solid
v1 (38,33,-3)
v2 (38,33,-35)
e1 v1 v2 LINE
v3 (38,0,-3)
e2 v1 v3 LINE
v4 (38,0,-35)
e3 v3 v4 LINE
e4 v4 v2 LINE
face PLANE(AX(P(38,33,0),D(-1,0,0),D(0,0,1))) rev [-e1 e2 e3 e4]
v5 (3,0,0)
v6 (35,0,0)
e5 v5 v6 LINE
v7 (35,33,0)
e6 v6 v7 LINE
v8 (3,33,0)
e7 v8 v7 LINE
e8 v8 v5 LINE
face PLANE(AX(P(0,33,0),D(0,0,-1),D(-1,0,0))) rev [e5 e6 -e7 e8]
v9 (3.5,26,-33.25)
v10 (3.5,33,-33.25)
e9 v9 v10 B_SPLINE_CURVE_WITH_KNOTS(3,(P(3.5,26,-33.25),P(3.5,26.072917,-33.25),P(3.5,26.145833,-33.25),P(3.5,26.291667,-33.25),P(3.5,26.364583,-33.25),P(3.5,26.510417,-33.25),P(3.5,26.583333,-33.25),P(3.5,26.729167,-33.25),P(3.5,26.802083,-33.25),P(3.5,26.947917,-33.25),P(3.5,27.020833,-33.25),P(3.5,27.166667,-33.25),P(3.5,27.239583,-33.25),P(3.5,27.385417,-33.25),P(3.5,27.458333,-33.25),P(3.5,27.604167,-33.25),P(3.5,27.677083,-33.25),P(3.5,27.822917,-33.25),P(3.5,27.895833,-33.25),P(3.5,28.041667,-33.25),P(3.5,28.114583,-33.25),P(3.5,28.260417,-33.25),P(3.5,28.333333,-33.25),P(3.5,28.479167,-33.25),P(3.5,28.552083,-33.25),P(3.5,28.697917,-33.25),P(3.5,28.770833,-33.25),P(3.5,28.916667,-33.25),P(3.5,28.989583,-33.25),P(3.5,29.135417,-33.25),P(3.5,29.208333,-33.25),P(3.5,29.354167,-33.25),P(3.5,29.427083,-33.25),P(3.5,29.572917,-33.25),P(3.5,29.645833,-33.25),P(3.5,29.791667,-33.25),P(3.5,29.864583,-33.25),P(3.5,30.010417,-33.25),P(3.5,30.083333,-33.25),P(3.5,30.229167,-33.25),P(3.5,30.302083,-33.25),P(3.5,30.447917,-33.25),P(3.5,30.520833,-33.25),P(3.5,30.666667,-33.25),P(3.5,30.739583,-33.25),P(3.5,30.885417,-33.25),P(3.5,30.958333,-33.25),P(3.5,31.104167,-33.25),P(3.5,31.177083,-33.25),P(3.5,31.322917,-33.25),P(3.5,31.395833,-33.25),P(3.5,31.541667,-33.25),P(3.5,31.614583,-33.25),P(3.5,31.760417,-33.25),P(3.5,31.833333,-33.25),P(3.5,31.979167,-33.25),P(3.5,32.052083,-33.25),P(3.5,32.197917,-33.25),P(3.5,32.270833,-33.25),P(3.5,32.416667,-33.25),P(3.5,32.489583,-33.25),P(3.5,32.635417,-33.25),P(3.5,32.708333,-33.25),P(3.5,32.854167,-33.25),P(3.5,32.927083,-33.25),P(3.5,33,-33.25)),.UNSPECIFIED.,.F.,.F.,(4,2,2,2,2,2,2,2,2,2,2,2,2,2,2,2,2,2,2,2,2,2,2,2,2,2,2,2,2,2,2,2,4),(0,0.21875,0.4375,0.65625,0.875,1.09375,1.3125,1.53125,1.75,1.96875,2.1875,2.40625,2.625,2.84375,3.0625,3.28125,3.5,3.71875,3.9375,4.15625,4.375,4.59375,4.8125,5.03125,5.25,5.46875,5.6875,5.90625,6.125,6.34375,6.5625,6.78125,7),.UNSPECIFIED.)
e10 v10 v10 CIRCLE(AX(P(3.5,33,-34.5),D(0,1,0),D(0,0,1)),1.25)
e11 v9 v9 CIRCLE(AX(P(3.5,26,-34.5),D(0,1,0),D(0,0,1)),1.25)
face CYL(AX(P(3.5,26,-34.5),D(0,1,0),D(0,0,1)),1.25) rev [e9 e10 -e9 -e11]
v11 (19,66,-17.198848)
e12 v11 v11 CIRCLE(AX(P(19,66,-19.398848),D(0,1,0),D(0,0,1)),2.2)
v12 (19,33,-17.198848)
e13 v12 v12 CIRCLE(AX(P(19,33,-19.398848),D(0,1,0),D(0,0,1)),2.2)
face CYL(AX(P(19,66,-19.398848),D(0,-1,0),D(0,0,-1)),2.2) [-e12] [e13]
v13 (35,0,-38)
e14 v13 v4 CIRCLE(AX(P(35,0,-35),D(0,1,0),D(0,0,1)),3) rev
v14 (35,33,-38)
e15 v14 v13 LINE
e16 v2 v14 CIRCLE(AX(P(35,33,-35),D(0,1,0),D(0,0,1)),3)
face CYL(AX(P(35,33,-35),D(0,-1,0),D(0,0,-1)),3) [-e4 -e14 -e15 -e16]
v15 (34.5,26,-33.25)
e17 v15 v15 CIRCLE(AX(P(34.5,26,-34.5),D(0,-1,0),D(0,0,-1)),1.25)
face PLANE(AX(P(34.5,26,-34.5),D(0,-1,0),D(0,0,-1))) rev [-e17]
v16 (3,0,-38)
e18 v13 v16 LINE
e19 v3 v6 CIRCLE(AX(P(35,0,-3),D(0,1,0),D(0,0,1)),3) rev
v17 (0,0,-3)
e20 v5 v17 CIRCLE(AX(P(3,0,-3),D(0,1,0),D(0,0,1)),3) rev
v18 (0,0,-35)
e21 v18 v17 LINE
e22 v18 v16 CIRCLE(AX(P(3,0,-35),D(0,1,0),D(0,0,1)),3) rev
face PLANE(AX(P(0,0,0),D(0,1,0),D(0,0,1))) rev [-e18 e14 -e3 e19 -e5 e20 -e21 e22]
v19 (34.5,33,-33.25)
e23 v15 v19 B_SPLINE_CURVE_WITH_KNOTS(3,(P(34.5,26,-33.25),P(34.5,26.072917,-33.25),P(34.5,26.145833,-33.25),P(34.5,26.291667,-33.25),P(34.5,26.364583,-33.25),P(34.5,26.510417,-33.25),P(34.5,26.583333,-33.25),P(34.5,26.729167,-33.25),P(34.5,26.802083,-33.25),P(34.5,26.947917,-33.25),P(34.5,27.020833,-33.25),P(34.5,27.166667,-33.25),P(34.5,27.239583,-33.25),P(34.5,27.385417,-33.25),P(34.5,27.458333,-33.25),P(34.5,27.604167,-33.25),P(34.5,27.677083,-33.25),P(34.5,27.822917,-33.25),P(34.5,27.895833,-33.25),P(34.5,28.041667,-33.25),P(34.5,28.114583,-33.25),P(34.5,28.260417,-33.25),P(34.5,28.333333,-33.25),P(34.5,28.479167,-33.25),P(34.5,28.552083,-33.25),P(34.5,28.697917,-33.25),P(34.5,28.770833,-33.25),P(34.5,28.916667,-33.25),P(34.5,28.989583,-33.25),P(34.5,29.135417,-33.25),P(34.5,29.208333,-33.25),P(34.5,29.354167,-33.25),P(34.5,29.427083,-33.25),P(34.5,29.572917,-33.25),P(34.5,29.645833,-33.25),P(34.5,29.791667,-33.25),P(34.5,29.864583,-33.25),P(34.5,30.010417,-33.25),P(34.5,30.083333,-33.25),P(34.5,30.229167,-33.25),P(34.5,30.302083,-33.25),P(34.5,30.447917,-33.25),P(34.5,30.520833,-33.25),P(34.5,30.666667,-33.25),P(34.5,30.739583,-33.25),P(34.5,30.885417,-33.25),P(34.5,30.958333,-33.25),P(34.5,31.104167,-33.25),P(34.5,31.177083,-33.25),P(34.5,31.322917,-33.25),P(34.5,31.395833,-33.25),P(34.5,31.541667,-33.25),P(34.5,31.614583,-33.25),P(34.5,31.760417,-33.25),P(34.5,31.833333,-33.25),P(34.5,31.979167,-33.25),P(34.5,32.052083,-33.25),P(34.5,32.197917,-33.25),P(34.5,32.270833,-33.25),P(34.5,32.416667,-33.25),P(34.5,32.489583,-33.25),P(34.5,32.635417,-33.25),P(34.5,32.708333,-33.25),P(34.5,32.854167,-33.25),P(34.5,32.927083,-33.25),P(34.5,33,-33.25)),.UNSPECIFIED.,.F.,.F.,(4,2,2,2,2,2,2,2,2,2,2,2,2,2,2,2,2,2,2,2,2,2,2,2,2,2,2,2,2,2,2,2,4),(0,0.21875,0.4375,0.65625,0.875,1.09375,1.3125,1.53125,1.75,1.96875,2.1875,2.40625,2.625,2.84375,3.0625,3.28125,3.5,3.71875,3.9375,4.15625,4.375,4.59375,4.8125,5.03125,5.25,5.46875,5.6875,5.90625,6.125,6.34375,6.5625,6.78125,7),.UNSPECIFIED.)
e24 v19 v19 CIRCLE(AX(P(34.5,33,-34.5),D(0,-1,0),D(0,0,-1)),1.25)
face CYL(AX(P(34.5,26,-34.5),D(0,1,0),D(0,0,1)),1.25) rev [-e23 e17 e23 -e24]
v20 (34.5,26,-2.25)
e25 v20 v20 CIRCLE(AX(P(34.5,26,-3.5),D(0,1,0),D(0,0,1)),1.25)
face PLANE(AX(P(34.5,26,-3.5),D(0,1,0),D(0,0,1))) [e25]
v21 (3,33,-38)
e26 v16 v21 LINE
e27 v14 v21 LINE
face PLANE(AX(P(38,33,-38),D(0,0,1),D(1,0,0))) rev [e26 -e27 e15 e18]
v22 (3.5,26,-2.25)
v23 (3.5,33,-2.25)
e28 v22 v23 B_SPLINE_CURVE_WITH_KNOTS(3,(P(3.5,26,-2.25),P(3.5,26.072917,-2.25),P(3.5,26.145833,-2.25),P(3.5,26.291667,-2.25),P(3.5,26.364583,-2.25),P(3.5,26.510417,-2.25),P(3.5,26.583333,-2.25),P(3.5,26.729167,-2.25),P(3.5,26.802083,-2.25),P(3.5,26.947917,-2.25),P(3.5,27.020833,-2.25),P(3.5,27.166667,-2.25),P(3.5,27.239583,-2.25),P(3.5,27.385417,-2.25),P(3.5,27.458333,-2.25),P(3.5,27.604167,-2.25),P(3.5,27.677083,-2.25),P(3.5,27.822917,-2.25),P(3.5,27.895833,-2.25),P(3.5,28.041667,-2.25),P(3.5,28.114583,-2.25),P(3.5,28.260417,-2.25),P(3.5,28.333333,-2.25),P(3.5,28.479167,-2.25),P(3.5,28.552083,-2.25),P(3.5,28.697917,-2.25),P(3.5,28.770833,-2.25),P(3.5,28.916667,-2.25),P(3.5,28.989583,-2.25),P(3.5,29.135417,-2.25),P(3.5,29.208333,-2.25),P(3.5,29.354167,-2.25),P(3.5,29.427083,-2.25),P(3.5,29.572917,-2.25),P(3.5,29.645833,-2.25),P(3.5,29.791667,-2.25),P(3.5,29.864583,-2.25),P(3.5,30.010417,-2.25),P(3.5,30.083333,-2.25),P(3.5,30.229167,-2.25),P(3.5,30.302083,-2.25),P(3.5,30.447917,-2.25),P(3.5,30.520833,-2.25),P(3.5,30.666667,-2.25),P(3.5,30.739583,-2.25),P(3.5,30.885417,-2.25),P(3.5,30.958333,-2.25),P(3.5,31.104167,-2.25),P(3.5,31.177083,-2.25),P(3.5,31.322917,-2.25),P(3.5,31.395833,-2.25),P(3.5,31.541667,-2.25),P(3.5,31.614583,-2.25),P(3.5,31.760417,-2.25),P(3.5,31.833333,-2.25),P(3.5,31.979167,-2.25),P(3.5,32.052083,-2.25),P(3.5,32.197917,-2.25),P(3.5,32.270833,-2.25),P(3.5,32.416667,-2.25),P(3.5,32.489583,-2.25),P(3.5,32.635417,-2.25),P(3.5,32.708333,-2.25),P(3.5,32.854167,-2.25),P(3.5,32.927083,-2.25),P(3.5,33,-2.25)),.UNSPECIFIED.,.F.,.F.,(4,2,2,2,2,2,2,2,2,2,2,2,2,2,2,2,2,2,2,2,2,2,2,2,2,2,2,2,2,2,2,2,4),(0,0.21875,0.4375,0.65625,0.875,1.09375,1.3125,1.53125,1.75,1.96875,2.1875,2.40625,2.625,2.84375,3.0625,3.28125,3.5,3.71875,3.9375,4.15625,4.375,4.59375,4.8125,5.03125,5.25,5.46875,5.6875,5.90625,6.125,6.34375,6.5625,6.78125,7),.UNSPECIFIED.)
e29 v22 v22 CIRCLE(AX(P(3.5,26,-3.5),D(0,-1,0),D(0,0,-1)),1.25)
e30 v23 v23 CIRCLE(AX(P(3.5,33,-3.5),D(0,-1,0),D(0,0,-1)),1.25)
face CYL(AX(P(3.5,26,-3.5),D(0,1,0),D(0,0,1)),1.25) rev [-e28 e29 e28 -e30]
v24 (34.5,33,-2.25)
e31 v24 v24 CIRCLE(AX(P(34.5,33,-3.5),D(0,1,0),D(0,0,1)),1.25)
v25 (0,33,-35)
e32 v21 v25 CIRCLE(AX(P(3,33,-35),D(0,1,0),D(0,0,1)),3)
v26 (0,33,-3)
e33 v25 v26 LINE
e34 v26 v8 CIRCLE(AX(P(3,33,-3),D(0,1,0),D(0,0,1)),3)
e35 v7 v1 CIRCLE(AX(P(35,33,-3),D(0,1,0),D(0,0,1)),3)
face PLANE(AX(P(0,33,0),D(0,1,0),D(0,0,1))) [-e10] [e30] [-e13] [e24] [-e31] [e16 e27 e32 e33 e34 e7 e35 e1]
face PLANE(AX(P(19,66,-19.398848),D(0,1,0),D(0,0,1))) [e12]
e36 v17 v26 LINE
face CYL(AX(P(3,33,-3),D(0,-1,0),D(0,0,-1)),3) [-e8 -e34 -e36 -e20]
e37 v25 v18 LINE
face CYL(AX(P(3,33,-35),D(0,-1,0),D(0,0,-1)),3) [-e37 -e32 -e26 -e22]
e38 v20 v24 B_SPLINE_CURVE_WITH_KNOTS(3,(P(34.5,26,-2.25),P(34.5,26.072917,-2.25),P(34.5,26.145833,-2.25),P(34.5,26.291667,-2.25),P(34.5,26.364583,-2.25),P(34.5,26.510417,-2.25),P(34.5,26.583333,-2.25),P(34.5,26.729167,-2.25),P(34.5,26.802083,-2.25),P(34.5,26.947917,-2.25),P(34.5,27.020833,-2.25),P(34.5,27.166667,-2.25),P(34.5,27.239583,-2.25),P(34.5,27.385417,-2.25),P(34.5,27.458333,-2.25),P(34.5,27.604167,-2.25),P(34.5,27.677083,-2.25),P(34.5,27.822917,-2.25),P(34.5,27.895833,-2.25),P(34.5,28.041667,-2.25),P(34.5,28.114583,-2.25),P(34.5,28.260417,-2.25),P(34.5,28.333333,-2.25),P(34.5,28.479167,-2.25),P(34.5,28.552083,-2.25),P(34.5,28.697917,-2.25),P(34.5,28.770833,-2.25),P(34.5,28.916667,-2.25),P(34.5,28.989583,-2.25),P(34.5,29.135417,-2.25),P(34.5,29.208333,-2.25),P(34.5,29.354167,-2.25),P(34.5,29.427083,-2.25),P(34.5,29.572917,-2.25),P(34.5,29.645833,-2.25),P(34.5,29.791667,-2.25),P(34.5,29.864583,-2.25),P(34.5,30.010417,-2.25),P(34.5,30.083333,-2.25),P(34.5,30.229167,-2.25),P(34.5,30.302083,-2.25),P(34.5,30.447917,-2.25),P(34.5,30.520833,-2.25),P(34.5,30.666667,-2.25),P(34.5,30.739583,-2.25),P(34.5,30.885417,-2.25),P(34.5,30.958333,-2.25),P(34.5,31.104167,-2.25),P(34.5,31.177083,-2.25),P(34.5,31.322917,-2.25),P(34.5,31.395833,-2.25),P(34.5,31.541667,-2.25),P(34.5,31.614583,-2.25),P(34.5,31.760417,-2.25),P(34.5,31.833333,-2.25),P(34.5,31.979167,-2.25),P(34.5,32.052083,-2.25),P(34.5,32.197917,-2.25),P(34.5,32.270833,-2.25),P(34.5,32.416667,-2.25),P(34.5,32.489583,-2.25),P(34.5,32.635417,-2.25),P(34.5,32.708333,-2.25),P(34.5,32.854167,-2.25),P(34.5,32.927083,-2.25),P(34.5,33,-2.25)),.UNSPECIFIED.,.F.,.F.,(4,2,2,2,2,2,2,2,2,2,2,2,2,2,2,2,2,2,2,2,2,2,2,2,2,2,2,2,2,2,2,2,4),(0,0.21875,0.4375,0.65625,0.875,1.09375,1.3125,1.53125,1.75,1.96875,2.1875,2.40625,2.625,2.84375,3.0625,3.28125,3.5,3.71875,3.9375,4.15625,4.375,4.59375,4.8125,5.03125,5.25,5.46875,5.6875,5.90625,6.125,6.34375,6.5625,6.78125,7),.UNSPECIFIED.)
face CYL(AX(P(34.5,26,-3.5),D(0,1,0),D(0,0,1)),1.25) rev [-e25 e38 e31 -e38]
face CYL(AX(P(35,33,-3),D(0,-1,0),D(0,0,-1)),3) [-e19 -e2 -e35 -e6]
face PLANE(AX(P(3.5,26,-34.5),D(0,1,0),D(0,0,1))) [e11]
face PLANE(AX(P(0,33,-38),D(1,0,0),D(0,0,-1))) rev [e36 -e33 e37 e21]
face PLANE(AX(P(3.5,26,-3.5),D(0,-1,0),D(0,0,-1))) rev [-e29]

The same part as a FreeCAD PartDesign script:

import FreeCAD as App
import Part
import Sketcher

V = App.Vector
Q = App.Units.Quantity


def edges_at(feature, points):
    """Names of the edges that pass closest to the given points."""
    edges = feature.Shape.Edges
    near = lambda p: min(range(len(edges)), key=lambda i: edges[i].distToShape(Part.Vertex(*p))[0])
    return sorted({f"Edge{near(p) + 1}" for p in points})


def add_polygon(sketch, points):
    """Adds a closed chain of lines whose ends are joined by coincident constraints."""
    first, n = sketch.GeometryCount, len(points)
    for a, b in zip(points, points[1:] + points[:1]):
        sketch.addGeometry(Part.LineSegment(App.Vector(*a, 0), App.Vector(*b, 0)), False)
    for i in range(n):
        sketch.addConstraint(Sketcher.Constraint("Coincident", first + i, 2, first + (i + 1) % n, 1))

doc = App.newDocument("Part")
body = doc.addObject("PartDesign::Body", "Body")

sketch1 = doc.addObject("Sketcher::SketchObject", "Sketch")
body.addObject(sketch1)
sketch1.AttachmentSupport = (doc.XZ_Plane, [""])
sketch1.MapMode = "FlatFace"
add_polygon(sketch1, [(0, -38), (0, 0), (38, 0), (38, -38)])
sketch1.addConstraint([
    Sketcher.Constraint("Vertical", 0),
    Sketcher.Constraint("Horizontal", 1),
    Sketcher.Constraint("Vertical", 2),
    Sketcher.Constraint("Horizontal", 3),
    Sketcher.Constraint("Coincident", 0, 2, -1, 1),
    Sketcher.Constraint("Equal", 3, 0),
    Sketcher.Constraint("DistanceX", 1, 1, 1, 2, Q("38 mm")),
])
pad1 = doc.addObject("PartDesign::Pad", "Pad")
body.addObject(pad1)
pad1.Profile = sketch1
pad1.Length = 33
pad1.Reversed = True

sketch2 = doc.addObject("Sketcher::SketchObject", "Sketch001")
body.addObject(sketch2)
sketch2.AttachmentSupport = (doc.XZ_Plane, [""])
sketch2.MapMode = "FlatFace"
sketch2.AttachmentOffset = App.Placement(V(0, 0, -33), App.Rotation())
sketch2.addGeometry(Part.Circle(V(19, -19.4, 0), V(0, 0, 1), 2.2), False)
sketch2.addConstraint([
    Sketcher.Constraint("Diameter", 0, Q("4.4 mm")),
    Sketcher.Constraint("DistanceX", -1, 1, 0, 3, Q("19 mm")),
    Sketcher.Constraint("DistanceY", 0, 3, -1, 1, Q("19.398848 mm")),
])
pad2 = doc.addObject("PartDesign::Pad", "Pad001")
body.addObject(pad2)
pad2.Profile = sketch2
pad2.Length = 33
pad2.Reversed = True
doc.recompute()

fillet = doc.addObject("PartDesign::Fillet", "Fillet")
body.addObject(fillet)
fillet.Base = (pad2, edges_at(pad2, [
    (38, 16.5, -38),
    (38, 16.5, 0),
    (0, 16.5, 0),
    (0, 16.5, -38),
]))
fillet.Radius = 3

sketch3 = doc.addObject("Sketcher::SketchObject", "Sketch002")
body.addObject(sketch3)
sketch3.AttachmentSupport = (doc.XZ_Plane, [""])
sketch3.MapMode = "FlatFace"
sketch3.AttachmentOffset = App.Placement(V(0, 0, -33), App.Rotation())
sketch3.addGeometry([
    Part.Circle(V(3.5, -34.5, 0), V(0, 0, 1), 1.2),
    Part.Circle(V(3.5, -3.5, 0), V(0, 0, 1), 1.2),
    Part.Circle(V(34.5, -3.5, 0), V(0, 0, 1), 1.2),
    Part.Circle(V(34.5, -34.5, 0), V(0, 0, 1), 1.2),
], False)
sketch3.addConstraint([
    Sketcher.Constraint("Equal", 0, 1),
    Sketcher.Constraint("Equal", 1, 2),
    Sketcher.Constraint("Equal", 2, 3),
    Sketcher.Constraint("Horizontal", 1, 3, 2, 3),
    Sketcher.Constraint("Horizontal", 0, 3, 3, 3),
    Sketcher.Constraint("Vertical", 0, 3, 1, 3),
    Sketcher.Constraint("Vertical", 2, 3, 3, 3),
    Sketcher.Constraint("Diameter", 0, Q("2.5 mm")),
    Sketcher.Constraint("DistanceY", 0, 3, 1, 3, Q("31 mm")),
    Sketcher.Constraint("DistanceX", 1, 3, 2, 3, Q("31 mm")),
    Sketcher.Constraint("DistanceX", -1, 1, 0, 3, Q("3.5 mm")),
    Sketcher.Constraint("DistanceY", 0, 3, -1, 1, Q("34.5 mm")),
])
pocket1 = doc.addObject("PartDesign::Pocket", "Pocket")
body.addObject(pocket1)
pocket1.Profile = sketch3
pocket1.Length = 7
pocket1.Reversed = True

doc.recompute()
